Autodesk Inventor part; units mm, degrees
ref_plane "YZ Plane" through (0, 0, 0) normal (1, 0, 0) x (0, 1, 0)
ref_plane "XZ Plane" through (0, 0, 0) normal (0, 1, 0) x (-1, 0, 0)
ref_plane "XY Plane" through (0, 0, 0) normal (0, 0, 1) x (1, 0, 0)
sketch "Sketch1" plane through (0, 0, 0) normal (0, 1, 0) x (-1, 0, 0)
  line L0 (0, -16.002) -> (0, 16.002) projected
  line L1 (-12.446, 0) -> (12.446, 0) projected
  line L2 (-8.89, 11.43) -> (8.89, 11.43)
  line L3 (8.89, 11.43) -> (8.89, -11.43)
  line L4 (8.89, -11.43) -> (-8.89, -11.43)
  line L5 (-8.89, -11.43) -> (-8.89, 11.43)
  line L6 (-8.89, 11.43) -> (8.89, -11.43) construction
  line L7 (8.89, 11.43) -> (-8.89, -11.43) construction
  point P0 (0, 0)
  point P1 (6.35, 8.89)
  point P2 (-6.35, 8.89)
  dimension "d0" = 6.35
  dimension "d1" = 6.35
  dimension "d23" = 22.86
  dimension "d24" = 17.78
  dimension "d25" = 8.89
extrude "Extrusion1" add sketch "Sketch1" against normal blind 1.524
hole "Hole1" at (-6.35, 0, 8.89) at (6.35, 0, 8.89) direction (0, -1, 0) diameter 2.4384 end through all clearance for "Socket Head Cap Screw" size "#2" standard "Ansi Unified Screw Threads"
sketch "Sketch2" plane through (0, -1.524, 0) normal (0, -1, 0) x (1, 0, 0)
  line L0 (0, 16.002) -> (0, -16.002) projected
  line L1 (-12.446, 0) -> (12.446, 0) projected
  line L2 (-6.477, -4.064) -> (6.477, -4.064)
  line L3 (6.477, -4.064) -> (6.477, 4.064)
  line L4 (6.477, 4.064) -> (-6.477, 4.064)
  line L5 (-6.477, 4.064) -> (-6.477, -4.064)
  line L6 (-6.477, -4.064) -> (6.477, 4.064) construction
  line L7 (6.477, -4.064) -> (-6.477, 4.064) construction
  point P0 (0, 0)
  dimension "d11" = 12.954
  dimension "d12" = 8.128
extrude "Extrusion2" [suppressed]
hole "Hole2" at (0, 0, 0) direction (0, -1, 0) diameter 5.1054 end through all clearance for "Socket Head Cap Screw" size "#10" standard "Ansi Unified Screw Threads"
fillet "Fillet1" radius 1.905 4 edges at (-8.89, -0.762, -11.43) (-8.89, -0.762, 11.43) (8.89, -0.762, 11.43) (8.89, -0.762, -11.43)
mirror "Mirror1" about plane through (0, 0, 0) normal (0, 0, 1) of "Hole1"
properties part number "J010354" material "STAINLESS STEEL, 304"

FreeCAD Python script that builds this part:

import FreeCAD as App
import Part
import Sketcher

V = App.Vector
Q = App.Units.Quantity


def edges_at(feature, points):
    """Names of the edges that pass closest to the given points."""
    edges = feature.Shape.Edges
    near = lambda p: min(range(len(edges)), key=lambda i: edges[i].distToShape(Part.Vertex(*p))[0])
    return sorted({f"Edge{near(p) + 1}" for p in points})

doc = App.newDocument("Part")
body = doc.addObject("PartDesign::Body", "Body")

# Sketch on XZ plane
sketch1 = body.newObject("Sketcher::SketchObject", "Sketch")
sketch1.AttachmentSupport = (doc.getObject("XZ_Plane"), [""])
sketch1.MapMode = "FlatFace"
sketch1.addGeometry(Part.LineSegment(V(8.89, -11.43, 0), V(-8.89, -11.43, 0)), False)
sketch1.addGeometry(Part.LineSegment(V(-8.89, -11.43, 0), V(-8.89, 11.43, 0)), False)
sketch1.addGeometry(Part.LineSegment(V(-8.89, 11.43, 0), V(8.89, 11.43, 0)), False)
sketch1.addGeometry(Part.LineSegment(V(8.89, 11.43, 0), V(8.89, -11.43, 0)), False)
sketch1.addConstraint(Sketcher.Constraint("Coincident", 0, 2, 1, 1))
sketch1.addConstraint(Sketcher.Constraint("Coincident", 1, 2, 2, 1))
sketch1.addConstraint(Sketcher.Constraint("Coincident", 2, 2, 3, 1))
sketch1.addConstraint(Sketcher.Constraint("Coincident", 3, 2, 0, 1))
sketch1.addConstraint(Sketcher.Constraint("Horizontal", 0))
sketch1.addConstraint(Sketcher.Constraint("Vertical", 1))
sketch1.addConstraint(Sketcher.Constraint("Horizontal", 2))
sketch1.addConstraint(Sketcher.Constraint("Vertical", 3))
sketch1.addConstraint(Sketcher.Constraint("Symmetric", 0, 2, 2, 2, -1, 1))
sketch1.addConstraint(Sketcher.Constraint("DistanceX", 0, 2, 0, 1, Q("0.7 in")))
sketch1.addConstraint(Sketcher.Constraint("DistanceY", 1, 1, 1, 2, Q("0.9 in")))
pad1 = body.newObject("PartDesign::Pad", "Pad")
pad1.Profile = sketch1
pad1.Length = Q("0.06 in")

# Sketch on XZ plane
sketch2 = body.newObject("Sketcher::SketchObject", "Sketch001")
sketch2.AttachmentSupport = (doc.getObject("XZ_Plane"), [""])
sketch2.MapMode = "FlatFace"
sketch2.addGeometry(Part.Circle(V(-6.35, 8.89, 0), V(0, 0, 1), 1.2192), False)
sketch2.addGeometry(Part.Circle(V(6.35, 8.89, 0), V(0, 0, 1), 1.2192), False)
sketch2.addConstraint(Sketcher.Constraint("Equal", 0, 1))
sketch2.addConstraint(Sketcher.Constraint("Symmetric", 0, 3, 1, 3, -2))
sketch2.addConstraint(Sketcher.Constraint("Diameter", 0, Q("0.096 in")))
sketch2.addConstraint(Sketcher.Constraint("DistanceX", 0, 3, 1, 3, Q("0.5 in")))
sketch2.addConstraint(Sketcher.Constraint("DistanceY", -1, 1, 0, 3, Q("0.35 in")))
doc.recompute()
hole = body.newObject("PartDesign::Hole", "Hole")
hole.Profile = sketch2
hole.ThreadType = "None"
hole.Diameter = Q("0.096 in")
hole.DepthType = "ThroughAll"
hole.Reversed = True

# Sketch on XZ plane
sketch3 = body.newObject("Sketcher::SketchObject", "Sketch002")
sketch3.AttachmentSupport = (doc.getObject("XZ_Plane"), [""])
sketch3.MapMode = "FlatFace"
sketch3.addGeometry(Part.Circle(V(0, 0, 0), V(0, 0, 1), 2.5527), False)
sketch3.addConstraint(Sketcher.Constraint("Coincident", 0, 3, -1, 1))
sketch3.addConstraint(Sketcher.Constraint("Diameter", 0, Q("0.201 in")))
doc.recompute()
hole2 = body.newObject("PartDesign::Hole", "Hole001")
hole2.Profile = sketch3
hole2.ThreadType = "None"
hole2.Diameter = Q("0.201 in")
hole2.DepthType = "ThroughAll"
hole2.Reversed = True
doc.recompute()

fillet = body.newObject("PartDesign::Fillet", "Fillet")
fillet.Base = (hole2, edges_at(hole2, [
    (-8.89, -0.762, -11.43),
    (-8.89, -0.762, 11.43),
    (8.89, -0.762, 11.43),
    (8.89, -0.762, -11.43),
]))
fillet.Radius = Q("0.075 in")
doc.recompute()

mirrored = body.newObject("PartDesign::Mirrored", "Mirrored")
mirrored.Originals = [hole]
mirrored.MirrorPlane = (doc.getObject("XY_Plane"), [""])
body.Tip = mirrored

doc.recompute()
